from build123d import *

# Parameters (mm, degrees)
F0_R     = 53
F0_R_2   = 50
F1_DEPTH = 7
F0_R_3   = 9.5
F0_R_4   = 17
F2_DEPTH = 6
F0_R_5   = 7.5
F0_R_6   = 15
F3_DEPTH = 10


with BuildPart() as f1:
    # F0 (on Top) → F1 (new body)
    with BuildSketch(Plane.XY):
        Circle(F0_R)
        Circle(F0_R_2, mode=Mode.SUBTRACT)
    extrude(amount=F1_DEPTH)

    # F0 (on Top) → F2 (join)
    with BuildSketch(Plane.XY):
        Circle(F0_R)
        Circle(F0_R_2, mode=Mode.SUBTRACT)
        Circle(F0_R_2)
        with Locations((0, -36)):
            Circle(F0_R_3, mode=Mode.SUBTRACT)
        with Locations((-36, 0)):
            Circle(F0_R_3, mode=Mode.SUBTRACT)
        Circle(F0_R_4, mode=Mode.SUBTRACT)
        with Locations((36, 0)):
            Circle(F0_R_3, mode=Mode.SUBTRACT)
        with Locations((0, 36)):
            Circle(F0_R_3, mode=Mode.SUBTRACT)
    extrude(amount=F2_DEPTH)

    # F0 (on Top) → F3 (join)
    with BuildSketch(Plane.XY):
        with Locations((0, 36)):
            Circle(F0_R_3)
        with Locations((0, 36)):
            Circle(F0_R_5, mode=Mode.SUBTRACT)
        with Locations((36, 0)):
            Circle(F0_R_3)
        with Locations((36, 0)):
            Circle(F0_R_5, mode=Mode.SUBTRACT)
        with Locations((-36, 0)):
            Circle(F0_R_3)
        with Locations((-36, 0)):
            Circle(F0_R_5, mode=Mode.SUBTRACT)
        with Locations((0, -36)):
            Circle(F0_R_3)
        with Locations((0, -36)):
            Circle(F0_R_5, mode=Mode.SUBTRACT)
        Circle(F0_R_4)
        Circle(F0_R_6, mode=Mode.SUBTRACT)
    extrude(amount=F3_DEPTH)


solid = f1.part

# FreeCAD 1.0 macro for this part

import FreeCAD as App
import Part
import Sketcher
Q = App.Units.Quantity

doc = App.newDocument("Part")
body = doc.addObject("PartDesign::Body", "Body")

# Sketch on XY plane
sketch1 = body.newObject("Sketcher::SketchObject", "Sketch")
sketch1.AttachmentSupport = (doc.getObject("XY_Plane"), [""])
sketch1.MapMode = "FlatFace"
sketch1.addGeometry(Part.Circle(App.Vector(0, 0, 0), App.Vector(0, 0, 1), 53), False)
sketch1.addGeometry(Part.Circle(App.Vector(0, 0, 0), App.Vector(0, 0, 1), 50), False)
sketch1.addConstraint(Sketcher.Constraint("Coincident", 0, 3, -1, 1))
sketch1.addConstraint(Sketcher.Constraint("Coincident", 1, 3, -1, 1))
sketch1.addConstraint(Sketcher.Constraint("Diameter", 0, Q("106 mm")))
sketch1.addConstraint(Sketcher.Constraint("Diameter", 1, Q("100 mm")))
pad1 = body.newObject("PartDesign::Pad", "Pad")
pad1.Profile = sketch1
pad1.Length = 7

# Sketch on XY plane
sketch2 = body.newObject("Sketcher::SketchObject", "Sketch001")
sketch2.AttachmentSupport = (doc.getObject("XY_Plane"), [""])
sketch2.MapMode = "FlatFace"
sketch2.addGeometry(Part.Circle(App.Vector(0, 0, 0), App.Vector(0, 0, 1), 53), False)
sketch2.addGeometry(Part.Circle(App.Vector(0, -36, 0), App.Vector(0, 0, 1), 10), False)
sketch2.addGeometry(Part.Circle(App.Vector(-36, 0, 0), App.Vector(0, 0, 1), 10), False)
sketch2.addGeometry(Part.Circle(App.Vector(0, 0, 0), App.Vector(0, 0, 1), 17), False)
sketch2.addGeometry(Part.Circle(App.Vector(36, 0, 0), App.Vector(0, 0, 1), 10), False)
sketch2.addGeometry(Part.Circle(App.Vector(0, 36, 0), App.Vector(0, 0, 1), 10), False)
sketch2.addConstraint(Sketcher.Constraint("Coincident", 0, 3, -1, 1))
sketch2.addConstraint(Sketcher.Constraint("Coincident", 3, 3, -1, 1))
sketch2.addConstraint(Sketcher.Constraint("Equal", 1, 2))
sketch2.addConstraint(Sketcher.Constraint("Equal", 2, 4))
sketch2.addConstraint(Sketcher.Constraint("Equal", 4, 5))
sketch2.addConstraint(Sketcher.Constraint("Symmetric", 2, 3, 4, 3, -1, 1))
sketch2.addConstraint(Sketcher.Constraint("Symmetric", 1, 3, 5, 3, -1, 1))
sketch2.addConstraint(Sketcher.Constraint("PointOnObject", 1, 3, -2))
sketch2.addConstraint(Sketcher.Constraint("PointOnObject", 2, 3, -1))
sketch2.addConstraint(Sketcher.Constraint("Diameter", 0, Q("106 mm")))
sketch2.addConstraint(Sketcher.Constraint("Diameter", 1, Q("19 mm")))
sketch2.addConstraint(Sketcher.Constraint("Diameter", 3, Q("34 mm")))
sketch2.addConstraint(Sketcher.Constraint("DistanceY", 1, 3, -1, 1, Q("36 mm")))
sketch2.addConstraint(Sketcher.Constraint("DistanceX", 2, 3, -1, 1, Q("36 mm")))
pad2 = body.newObject("PartDesign::Pad", "Pad001")
pad2.Profile = sketch2
pad2.Length = 6

# Sketch on XY plane
sketch3 = body.newObject("Sketcher::SketchObject", "Sketch002")
sketch3.AttachmentSupport = (doc.getObject("XY_Plane"), [""])
sketch3.MapMode = "FlatFace"
sketch3.addGeometry(Part.Circle(App.Vector(0, 36, 0), App.Vector(0, 0, 1), 10), False)
sketch3.addGeometry(Part.Circle(App.Vector(0, 36, 0), App.Vector(0, 0, 1), 8), False)
sketch3.addGeometry(Part.Circle(App.Vector(36, 0, 0), App.Vector(0, 0, 1), 10), False)
sketch3.addGeometry(Part.Circle(App.Vector(36, 0, 0), App.Vector(0, 0, 1), 8), False)
sketch3.addGeometry(Part.Circle(App.Vector(-36, 0, 0), App.Vector(0, 0, 1), 10), False)
sketch3.addGeometry(Part.Circle(App.Vector(-36, 0, 0), App.Vector(0, 0, 1), 8), False)
sketch3.addGeometry(Part.Circle(App.Vector(0, -36, 0), App.Vector(0, 0, 1), 10), False)
sketch3.addGeometry(Part.Circle(App.Vector(0, -36, 0), App.Vector(0, 0, 1), 8), False)
sketch3.addGeometry(Part.Circle(App.Vector(0, 0, 0), App.Vector(0, 0, 1), 17), False)
sketch3.addGeometry(Part.Circle(App.Vector(0, 0, 0), App.Vector(0, 0, 1), 15), False)
sketch3.addConstraint(Sketcher.Constraint("Coincident", 8, 3, -1, 1))
sketch3.addConstraint(Sketcher.Constraint("Coincident", 9, 3, -1, 1))
sketch3.addConstraint(Sketcher.Constraint("Coincident", 1, 3, 0, 3))
sketch3.addConstraint(Sketcher.Constraint("Coincident", 3, 3, 2, 3))
sketch3.addConstraint(Sketcher.Constraint("Coincident", 5, 3, 4, 3))
sketch3.addConstraint(Sketcher.Constraint("Coincident", 7, 3, 6, 3))
sketch3.addConstraint(Sketcher.Constraint("Equal", 0, 2))
sketch3.addConstraint(Sketcher.Constraint("Equal", 1, 3))
sketch3.addConstraint(Sketcher.Constraint("Equal", 2, 4))
sketch3.addConstraint(Sketcher.Constraint("Equal", 3, 5))
sketch3.addConstraint(Sketcher.Constraint("Equal", 4, 6))
sketch3.addConstraint(Sketcher.Constraint("Equal", 5, 7))
sketch3.addConstraint(Sketcher.Constraint("Symmetric", 2, 3, 4, 3, -1, 1))
sketch3.addConstraint(Sketcher.Constraint("Symmetric", 0, 3, 6, 3, -1, 1))
sketch3.addConstraint(Sketcher.Constraint("PointOnObject", 0, 3, -2))
sketch3.addConstraint(Sketcher.Constraint("PointOnObject", 2, 3, -1))
sketch3.addConstraint(Sketcher.Constraint("Diameter", 0, Q("19 mm")))
sketch3.addConstraint(Sketcher.Constraint("Diameter", 1, Q("15 mm")))
sketch3.addConstraint(Sketcher.Constraint("Diameter", 8, Q("34 mm")))
sketch3.addConstraint(Sketcher.Constraint("Diameter", 9, Q("30 mm")))
sketch3.addConstraint(Sketcher.Constraint("DistanceY", -1, 1, 0, 3, Q("36 mm")))
sketch3.addConstraint(Sketcher.Constraint("DistanceX", -1, 1, 2, 3, Q("36 mm")))
pad3 = body.newObject("PartDesign::Pad", "Pad002")
pad3.Profile = sketch3
pad3.Length = 10

doc.recompute()
